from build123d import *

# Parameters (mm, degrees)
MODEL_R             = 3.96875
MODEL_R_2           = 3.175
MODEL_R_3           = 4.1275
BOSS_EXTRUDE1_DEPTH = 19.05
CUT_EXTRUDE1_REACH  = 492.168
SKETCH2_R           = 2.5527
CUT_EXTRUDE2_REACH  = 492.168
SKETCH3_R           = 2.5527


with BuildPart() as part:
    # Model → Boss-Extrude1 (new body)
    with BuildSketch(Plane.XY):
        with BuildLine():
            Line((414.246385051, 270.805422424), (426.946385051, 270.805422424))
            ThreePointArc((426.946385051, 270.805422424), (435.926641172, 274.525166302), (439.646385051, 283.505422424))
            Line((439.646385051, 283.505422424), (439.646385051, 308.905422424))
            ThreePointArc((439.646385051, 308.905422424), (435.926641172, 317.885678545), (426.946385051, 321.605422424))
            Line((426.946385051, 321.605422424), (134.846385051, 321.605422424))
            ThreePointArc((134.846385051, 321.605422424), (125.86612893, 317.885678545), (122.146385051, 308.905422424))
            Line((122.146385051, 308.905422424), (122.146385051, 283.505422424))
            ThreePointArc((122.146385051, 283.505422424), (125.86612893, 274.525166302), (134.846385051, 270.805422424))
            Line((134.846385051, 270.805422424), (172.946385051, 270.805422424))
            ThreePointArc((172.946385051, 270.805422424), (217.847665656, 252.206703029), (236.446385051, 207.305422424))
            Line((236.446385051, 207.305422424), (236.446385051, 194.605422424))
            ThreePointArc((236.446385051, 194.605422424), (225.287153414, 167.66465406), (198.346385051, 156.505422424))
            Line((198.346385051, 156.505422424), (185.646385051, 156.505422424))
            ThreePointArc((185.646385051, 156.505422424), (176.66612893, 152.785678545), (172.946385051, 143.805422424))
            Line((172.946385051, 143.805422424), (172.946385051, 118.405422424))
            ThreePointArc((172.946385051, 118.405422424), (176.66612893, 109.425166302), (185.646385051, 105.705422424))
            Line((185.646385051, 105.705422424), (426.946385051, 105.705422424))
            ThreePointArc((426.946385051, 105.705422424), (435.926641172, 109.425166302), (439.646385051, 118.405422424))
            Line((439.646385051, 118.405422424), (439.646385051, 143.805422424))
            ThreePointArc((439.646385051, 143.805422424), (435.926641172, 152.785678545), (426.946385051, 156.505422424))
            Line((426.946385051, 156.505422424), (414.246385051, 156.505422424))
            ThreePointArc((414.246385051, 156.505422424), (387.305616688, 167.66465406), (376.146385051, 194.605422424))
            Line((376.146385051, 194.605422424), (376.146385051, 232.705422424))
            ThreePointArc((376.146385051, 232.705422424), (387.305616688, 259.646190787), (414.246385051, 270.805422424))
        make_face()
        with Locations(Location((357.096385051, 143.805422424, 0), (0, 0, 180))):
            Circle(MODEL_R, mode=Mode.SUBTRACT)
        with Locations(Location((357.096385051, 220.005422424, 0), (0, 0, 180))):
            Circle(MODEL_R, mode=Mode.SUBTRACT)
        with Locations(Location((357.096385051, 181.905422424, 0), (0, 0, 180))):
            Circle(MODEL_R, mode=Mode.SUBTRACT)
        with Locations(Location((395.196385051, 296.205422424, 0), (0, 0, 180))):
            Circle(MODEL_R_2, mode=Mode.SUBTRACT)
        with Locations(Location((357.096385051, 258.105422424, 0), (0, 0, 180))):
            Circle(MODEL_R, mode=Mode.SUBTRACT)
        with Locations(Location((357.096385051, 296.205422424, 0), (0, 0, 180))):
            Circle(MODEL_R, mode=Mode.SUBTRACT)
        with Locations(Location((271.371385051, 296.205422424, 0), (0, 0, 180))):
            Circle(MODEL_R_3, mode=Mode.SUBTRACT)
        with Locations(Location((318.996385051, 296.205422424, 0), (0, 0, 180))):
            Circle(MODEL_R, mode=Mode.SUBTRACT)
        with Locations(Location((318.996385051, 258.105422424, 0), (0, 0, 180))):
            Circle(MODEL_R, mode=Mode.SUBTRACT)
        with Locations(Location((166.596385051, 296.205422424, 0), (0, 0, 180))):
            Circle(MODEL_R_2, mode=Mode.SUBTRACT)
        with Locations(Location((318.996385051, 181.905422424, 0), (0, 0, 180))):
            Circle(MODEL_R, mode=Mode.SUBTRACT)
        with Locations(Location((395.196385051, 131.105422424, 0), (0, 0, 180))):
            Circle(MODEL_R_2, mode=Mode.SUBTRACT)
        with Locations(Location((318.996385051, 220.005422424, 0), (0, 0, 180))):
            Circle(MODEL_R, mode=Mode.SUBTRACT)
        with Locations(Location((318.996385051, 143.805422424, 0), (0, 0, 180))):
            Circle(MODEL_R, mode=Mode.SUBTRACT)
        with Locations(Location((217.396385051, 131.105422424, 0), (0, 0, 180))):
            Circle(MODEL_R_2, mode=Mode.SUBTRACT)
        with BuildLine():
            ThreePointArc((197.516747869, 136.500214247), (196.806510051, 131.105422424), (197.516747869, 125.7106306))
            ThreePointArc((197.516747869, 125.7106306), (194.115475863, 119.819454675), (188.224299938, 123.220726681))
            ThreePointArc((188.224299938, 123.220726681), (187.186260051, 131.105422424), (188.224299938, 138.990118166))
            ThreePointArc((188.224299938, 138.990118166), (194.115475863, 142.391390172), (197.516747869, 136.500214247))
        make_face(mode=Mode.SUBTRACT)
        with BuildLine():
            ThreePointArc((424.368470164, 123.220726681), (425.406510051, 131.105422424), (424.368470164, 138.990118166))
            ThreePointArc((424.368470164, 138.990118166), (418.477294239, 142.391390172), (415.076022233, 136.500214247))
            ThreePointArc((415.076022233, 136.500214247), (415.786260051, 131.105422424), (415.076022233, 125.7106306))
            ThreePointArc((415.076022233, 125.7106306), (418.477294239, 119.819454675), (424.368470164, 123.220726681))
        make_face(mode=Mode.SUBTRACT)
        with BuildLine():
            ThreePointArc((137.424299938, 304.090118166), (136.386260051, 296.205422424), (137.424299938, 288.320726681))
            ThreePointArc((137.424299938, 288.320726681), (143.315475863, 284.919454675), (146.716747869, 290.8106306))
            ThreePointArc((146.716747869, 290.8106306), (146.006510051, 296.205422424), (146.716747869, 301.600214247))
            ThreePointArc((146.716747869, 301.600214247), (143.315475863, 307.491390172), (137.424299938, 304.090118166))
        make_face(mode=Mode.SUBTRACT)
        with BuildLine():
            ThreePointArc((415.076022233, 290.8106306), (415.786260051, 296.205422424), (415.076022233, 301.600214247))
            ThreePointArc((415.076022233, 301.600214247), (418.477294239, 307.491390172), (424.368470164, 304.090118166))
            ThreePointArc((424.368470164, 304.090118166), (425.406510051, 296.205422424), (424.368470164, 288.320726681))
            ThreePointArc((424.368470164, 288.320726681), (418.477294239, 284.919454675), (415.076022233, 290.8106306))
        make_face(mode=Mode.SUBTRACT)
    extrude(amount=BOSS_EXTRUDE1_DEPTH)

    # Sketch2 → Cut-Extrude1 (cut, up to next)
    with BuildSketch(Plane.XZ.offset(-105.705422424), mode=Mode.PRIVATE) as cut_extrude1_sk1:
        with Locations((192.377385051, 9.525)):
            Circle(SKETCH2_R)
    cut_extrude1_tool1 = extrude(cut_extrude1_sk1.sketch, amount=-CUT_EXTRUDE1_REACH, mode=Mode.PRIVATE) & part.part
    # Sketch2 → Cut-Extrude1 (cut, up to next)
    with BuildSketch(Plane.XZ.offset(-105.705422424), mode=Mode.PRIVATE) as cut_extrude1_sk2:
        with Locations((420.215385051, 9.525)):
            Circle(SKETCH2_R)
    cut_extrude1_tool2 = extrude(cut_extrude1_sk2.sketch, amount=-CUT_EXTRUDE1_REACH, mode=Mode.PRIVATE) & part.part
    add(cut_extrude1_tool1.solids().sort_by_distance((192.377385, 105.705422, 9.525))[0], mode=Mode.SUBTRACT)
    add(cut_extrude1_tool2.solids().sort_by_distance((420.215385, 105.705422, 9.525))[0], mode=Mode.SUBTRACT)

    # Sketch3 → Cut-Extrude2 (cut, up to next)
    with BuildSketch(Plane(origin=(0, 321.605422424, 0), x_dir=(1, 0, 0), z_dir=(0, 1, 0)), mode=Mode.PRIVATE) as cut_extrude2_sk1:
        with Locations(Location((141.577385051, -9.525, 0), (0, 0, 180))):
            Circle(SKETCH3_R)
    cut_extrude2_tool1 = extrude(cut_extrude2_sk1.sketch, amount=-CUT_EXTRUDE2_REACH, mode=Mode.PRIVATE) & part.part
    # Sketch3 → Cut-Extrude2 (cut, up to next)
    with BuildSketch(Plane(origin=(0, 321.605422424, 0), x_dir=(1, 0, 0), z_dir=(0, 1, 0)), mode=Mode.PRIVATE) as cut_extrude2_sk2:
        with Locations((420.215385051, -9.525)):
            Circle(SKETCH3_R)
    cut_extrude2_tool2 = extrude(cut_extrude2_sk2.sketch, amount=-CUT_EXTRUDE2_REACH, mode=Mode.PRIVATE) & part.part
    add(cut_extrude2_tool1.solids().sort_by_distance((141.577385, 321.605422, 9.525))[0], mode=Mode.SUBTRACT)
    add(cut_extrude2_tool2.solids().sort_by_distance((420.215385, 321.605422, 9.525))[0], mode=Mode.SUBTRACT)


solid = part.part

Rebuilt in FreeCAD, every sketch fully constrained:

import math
import FreeCAD as App
import Part
import Sketcher
Q = App.Units.Quantity

doc = App.newDocument("Part")
body = doc.addObject("PartDesign::Body", "Body")

# Sketch on XY plane
sketch1 = body.newObject("Sketcher::SketchObject", "Sketch")
sketch1.AttachmentSupport = (doc.getObject("XY_Plane"), [""])
sketch1.MapMode = "FlatFace"
sketch1.addGeometry(Part.LineSegment(App.Vector(414.2, 270.8, 0), App.Vector(426.9, 270.8, 0)), False)
sketch1.addGeometry(Part.ArcOfCircle(Part.Circle(App.Vector(426.9, 283.5, 0), App.Vector(0, 0, 1), 12.7), math.radians(-90), math.radians(0)), False)
sketch1.addGeometry(Part.LineSegment(App.Vector(439.6, 283.5, 0), App.Vector(439.6, 308.9, 0)), False)
sketch1.addGeometry(Part.ArcOfCircle(Part.Circle(App.Vector(426.9, 308.9, 0), App.Vector(0, 0, 1), 12.7), math.radians(0), math.radians(90)), False)
sketch1.addGeometry(Part.LineSegment(App.Vector(426.9, 321.6, 0), App.Vector(134.8, 321.6, 0)), False)
sketch1.addGeometry(Part.ArcOfCircle(Part.Circle(App.Vector(134.8, 308.9, 0), App.Vector(0, 0, 1), 12.7), math.radians(90), math.radians(180)), False)
sketch1.addGeometry(Part.LineSegment(App.Vector(122.1, 308.9, 0), App.Vector(122.1, 283.5, 0)), False)
sketch1.addGeometry(Part.ArcOfCircle(Part.Circle(App.Vector(134.8, 283.5, 0), App.Vector(0, 0, 1), 12.7), math.radians(180), math.radians(270)), False)
sketch1.addGeometry(Part.LineSegment(App.Vector(134.8, 270.8, 0), App.Vector(172.9, 270.8, 0)), False)
sketch1.addGeometry(Part.ArcOfCircle(Part.Circle(App.Vector(172.9, 207.3, 0), App.Vector(0, 0, 1), 63.5), math.radians(0), math.radians(90)), False)
sketch1.addGeometry(Part.LineSegment(App.Vector(236.4, 207.3, 0), App.Vector(236.4, 194.6, 0)), False)
sketch1.addGeometry(Part.ArcOfCircle(Part.Circle(App.Vector(198.3, 194.6, 0), App.Vector(0, 0, 1), 38.1), math.radians(-90), math.radians(0)), False)
sketch1.addGeometry(Part.LineSegment(App.Vector(198.3, 156.5, 0), App.Vector(185.6, 156.5, 0)), False)
sketch1.addGeometry(Part.ArcOfCircle(Part.Circle(App.Vector(185.6, 143.8, 0), App.Vector(0, 0, 1), 12.7), math.radians(90), math.radians(180)), False)
sketch1.addGeometry(Part.LineSegment(App.Vector(172.9, 143.8, 0), App.Vector(172.9, 118.4, 0)), False)
sketch1.addGeometry(Part.ArcOfCircle(Part.Circle(App.Vector(185.6, 118.4, 0), App.Vector(0, 0, 1), 12.7), math.radians(180), math.radians(270)), False)
sketch1.addGeometry(Part.LineSegment(App.Vector(185.6, 105.7, 0), App.Vector(426.9, 105.7, 0)), False)
sketch1.addGeometry(Part.ArcOfCircle(Part.Circle(App.Vector(426.9, 118.4, 0), App.Vector(0, 0, 1), 12.7), math.radians(-90), math.radians(0)), False)
sketch1.addGeometry(Part.LineSegment(App.Vector(439.6, 118.4, 0), App.Vector(439.6, 143.8, 0)), False)
sketch1.addGeometry(Part.ArcOfCircle(Part.Circle(App.Vector(426.9, 143.8, 0), App.Vector(0, 0, 1), 12.7), math.radians(0), math.radians(90)), False)
sketch1.addGeometry(Part.LineSegment(App.Vector(426.9, 156.5, 0), App.Vector(414.2, 156.5, 0)), False)
sketch1.addGeometry(Part.ArcOfCircle(Part.Circle(App.Vector(414.2, 194.6, 0), App.Vector(0, 0, 1), 38.1), math.radians(180), math.radians(270)), False)
sketch1.addGeometry(Part.LineSegment(App.Vector(376.1, 194.6, 0), App.Vector(376.1, 232.7, 0)), False)
sketch1.addGeometry(Part.ArcOfCircle(Part.Circle(App.Vector(414.2, 232.7, 0), App.Vector(0, 0, 1), 38.1), math.radians(90), math.radians(180)), False)
sketch1.addGeometry(Part.ArcOfCircle(Part.Circle(App.Vector(192.9, 137.7, 0), App.Vector(0, 0, 1), 4.8), math.radians(-15), math.radians(165)), False)
sketch1.addGeometry(Part.ArcOfCircle(Part.Circle(App.Vector(217.7, 131.1, 0), App.Vector(0, 0, 1), 20.8), math.radians(165), math.radians(195)), False)
sketch1.addGeometry(Part.ArcOfCircle(Part.Circle(App.Vector(192.9, 124.5, 0), App.Vector(0, 0, 1), 4.8), math.radians(-165), math.radians(15)), False)
sketch1.addGeometry(Part.ArcOfCircle(Part.Circle(App.Vector(217.7, 131.1, 0), App.Vector(0, 0, 1), 30.5), math.radians(165), math.radians(195)), False)
sketch1.addGeometry(Part.Circle(App.Vector(217.4, 131.1, 0), App.Vector(0, 0, 1), 3.2), False)
sketch1.addGeometry(Part.Circle(App.Vector(319, 143.8, 0), App.Vector(0, 0, 1), 4), False)
sketch1.addGeometry(Part.Circle(App.Vector(395.2, 131.1, 0), App.Vector(0, 0, 1), 3.2), False)
sketch1.addGeometry(Part.ArcOfCircle(Part.Circle(App.Vector(394.9, 131.1, 0), App.Vector(0, 0, 1), 30.5), math.radians(-15), math.radians(15)), False)
sketch1.addGeometry(Part.ArcOfCircle(Part.Circle(App.Vector(419.7, 124.5, 0), App.Vector(0, 0, 1), 4.8), math.radians(165), math.radians(345)), False)
sketch1.addGeometry(Part.ArcOfCircle(Part.Circle(App.Vector(394.9, 131.1, 0), App.Vector(0, 0, 1), 20.8), math.radians(-15), math.radians(15)), False)
sketch1.addGeometry(Part.ArcOfCircle(Part.Circle(App.Vector(419.7, 137.7, 0), App.Vector(0, 0, 1), 4.8), math.radians(15), math.radians(195)), False)
sketch1.addGeometry(Part.Circle(App.Vector(357.1, 143.8, 0), App.Vector(0, 0, 1), 4), False)
sketch1.addGeometry(Part.Circle(App.Vector(319, 181.9, 0), App.Vector(0, 0, 1), 4), False)
sketch1.addGeometry(Part.Circle(App.Vector(357.1, 181.9, 0), App.Vector(0, 0, 1), 4), False)
sketch1.addGeometry(Part.ArcOfCircle(Part.Circle(App.Vector(166.9, 296.2, 0), App.Vector(0, 0, 1), 30.5), math.radians(165), math.radians(195)), False)
sketch1.addGeometry(Part.ArcOfCircle(Part.Circle(App.Vector(142.1, 302.8, 0), App.Vector(0, 0, 1), 4.8), math.radians(-15), math.radians(165)), False)
sketch1.addGeometry(Part.ArcOfCircle(Part.Circle(App.Vector(166.9, 296.2, 0), App.Vector(0, 0, 1), 20.8), math.radians(165), math.radians(195)), False)
sketch1.addGeometry(Part.ArcOfCircle(Part.Circle(App.Vector(142.1, 289.6, 0), App.Vector(0, 0, 1), 4.8), math.radians(-165), math.radians(15)), False)
sketch1.addGeometry(Part.Circle(App.Vector(166.6, 296.2, 0), App.Vector(0, 0, 1), 3.2), False)
sketch1.addGeometry(Part.Circle(App.Vector(271.4, 296.2, 0), App.Vector(0, 0, 1), 4.1), False)
sketch1.addGeometry(Part.Circle(App.Vector(319, 220, 0), App.Vector(0, 0, 1), 4), False)
sketch1.addGeometry(Part.Circle(App.Vector(319, 258.1, 0), App.Vector(0, 0, 1), 4), False)
sketch1.addGeometry(Part.Circle(App.Vector(357.1, 220, 0), App.Vector(0, 0, 1), 4), False)
sketch1.addGeometry(Part.Circle(App.Vector(357.1, 258.1, 0), App.Vector(0, 0, 1), 4), False)
sketch1.addGeometry(Part.Circle(App.Vector(319, 296.2, 0), App.Vector(0, 0, 1), 4), False)
sketch1.addGeometry(Part.Circle(App.Vector(357.1, 296.2, 0), App.Vector(0, 0, 1), 4), False)
sketch1.addGeometry(Part.Circle(App.Vector(395.2, 296.2, 0), App.Vector(0, 0, 1), 3.2), False)
sketch1.addGeometry(Part.ArcOfCircle(Part.Circle(App.Vector(419.7, 289.6, 0), App.Vector(0, 0, 1), 4.8), math.radians(165), math.radians(345)), False)
sketch1.addGeometry(Part.ArcOfCircle(Part.Circle(App.Vector(394.9, 296.2, 0), App.Vector(0, 0, 1), 20.8), math.radians(-15), math.radians(15)), False)
sketch1.addGeometry(Part.ArcOfCircle(Part.Circle(App.Vector(419.7, 302.8, 0), App.Vector(0, 0, 1), 4.8), math.radians(15), math.radians(195)), False)
sketch1.addGeometry(Part.ArcOfCircle(Part.Circle(App.Vector(394.9, 296.2, 0), App.Vector(0, 0, 1), 30.5), math.radians(-15), math.radians(15)), False)
sketch1.addConstraint(Sketcher.Constraint("Tangent", 0, 2, 1, 1))
sketch1.addConstraint(Sketcher.Constraint("Tangent", 1, 2, 2, 1))
sketch1.addConstraint(Sketcher.Constraint("Tangent", 2, 2, 3, 1))
sketch1.addConstraint(Sketcher.Constraint("Tangent", 3, 2, 4, 1))
sketch1.addConstraint(Sketcher.Constraint("Tangent", 4, 2, 5, 1))
sketch1.addConstraint(Sketcher.Constraint("Tangent", 5, 2, 6, 1))
sketch1.addConstraint(Sketcher.Constraint("Tangent", 6, 2, 7, 1))
sketch1.addConstraint(Sketcher.Constraint("Tangent", 7, 2, 8, 1))
sketch1.addConstraint(Sketcher.Constraint("Tangent", 8, 2, 9, 2))
sketch1.addConstraint(Sketcher.Constraint("Tangent", 9, 1, 10, 1))
sketch1.addConstraint(Sketcher.Constraint("Tangent", 10, 2, 11, 2))
sketch1.addConstraint(Sketcher.Constraint("Tangent", 11, 1, 12, 1))
sketch1.addConstraint(Sketcher.Constraint("Tangent", 12, 2, 13, 1))
sketch1.addConstraint(Sketcher.Constraint("Tangent", 13, 2, 14, 1))
sketch1.addConstraint(Sketcher.Constraint("Tangent", 14, 2, 15, 1))
sketch1.addConstraint(Sketcher.Constraint("Tangent", 15, 2, 16, 1))
sketch1.addConstraint(Sketcher.Constraint("Tangent", 16, 2, 17, 1))
sketch1.addConstraint(Sketcher.Constraint("Tangent", 17, 2, 18, 1))
sketch1.addConstraint(Sketcher.Constraint("Tangent", 18, 2, 19, 1))
sketch1.addConstraint(Sketcher.Constraint("Tangent", 19, 2, 20, 1))
sketch1.addConstraint(Sketcher.Constraint("Tangent", 20, 2, 21, 2))
sketch1.addConstraint(Sketcher.Constraint("Tangent", 21, 1, 22, 1))
sketch1.addConstraint(Sketcher.Constraint("Tangent", 22, 2, 23, 2))
sketch1.addConstraint(Sketcher.Constraint("Tangent", 23, 1, 0, 1))
sketch1.addConstraint(Sketcher.Constraint("Tangent", 24, 1, 25, 1))
sketch1.addConstraint(Sketcher.Constraint("Tangent", 25, 2, 26, 2))
sketch1.addConstraint(Sketcher.Constraint("Tangent", 26, 1, 27, 2))
sketch1.addConstraint(Sketcher.Constraint("Tangent", 27, 1, 24, 2))
sketch1.addConstraint(Sketcher.Constraint("Tangent", 31, 1, 32, 2))
sketch1.addConstraint(Sketcher.Constraint("Tangent", 32, 1, 33, 1))
sketch1.addConstraint(Sketcher.Constraint("Tangent", 33, 2, 34, 2))
sketch1.addConstraint(Sketcher.Constraint("Tangent", 34, 1, 31, 2))
sketch1.addConstraint(Sketcher.Constraint("Tangent", 38, 1, 39, 2))
sketch1.addConstraint(Sketcher.Constraint("Tangent", 39, 1, 40, 1))
sketch1.addConstraint(Sketcher.Constraint("Tangent", 40, 2, 41, 2))
sketch1.addConstraint(Sketcher.Constraint("Tangent", 41, 1, 38, 2))
sketch1.addConstraint(Sketcher.Constraint("Tangent", 51, 1, 52, 1))
sketch1.addConstraint(Sketcher.Constraint("Tangent", 52, 2, 53, 2))
sketch1.addConstraint(Sketcher.Constraint("Tangent", 53, 1, 54, 2))
sketch1.addConstraint(Sketcher.Constraint("Tangent", 54, 1, 51, 2))
sketch1.addConstraint(Sketcher.Constraint("Horizontal", 0))
sketch1.addConstraint(Sketcher.Constraint("Vertical", 2))
sketch1.addConstraint(Sketcher.Constraint("Horizontal", 4))
sketch1.addConstraint(Sketcher.Constraint("Vertical", 6))
sketch1.addConstraint(Sketcher.Constraint("Horizontal", 8))
sketch1.addConstraint(Sketcher.Constraint("Vertical", 10))
sketch1.addConstraint(Sketcher.Constraint("Horizontal", 12))
sketch1.addConstraint(Sketcher.Constraint("Vertical", 14))
sketch1.addConstraint(Sketcher.Constraint("Horizontal", 16))
sketch1.addConstraint(Sketcher.Constraint("Vertical", 18))
sketch1.addConstraint(Sketcher.Constraint("Horizontal", 20))
sketch1.addConstraint(Sketcher.Constraint("Vertical", 22))
sketch1.addConstraint(Sketcher.Constraint("Coincident", 27, 3, 25, 3))
sketch1.addConstraint(Sketcher.Constraint("Coincident", 33, 3, 31, 3))
sketch1.addConstraint(Sketcher.Constraint("Coincident", 40, 3, 38, 3))
sketch1.addConstraint(Sketcher.Constraint("Coincident", 54, 3, 52, 3))
sketch1.addConstraint(Sketcher.Constraint("Equal", 1, 3))
sketch1.addConstraint(Sketcher.Constraint("Equal", 3, 5))
sketch1.addConstraint(Sketcher.Constraint("Equal", 5, 7))
sketch1.addConstraint(Sketcher.Constraint("Equal", 7, 13))
sketch1.addConstraint(Sketcher.Constraint("Equal", 13, 15))
sketch1.addConstraint(Sketcher.Constraint("Equal", 15, 17))
sketch1.addConstraint(Sketcher.Constraint("Equal", 17, 19))
sketch1.addConstraint(Sketcher.Constraint("Equal", 11, 21))
sketch1.addConstraint(Sketcher.Constraint("Equal", 21, 23))
sketch1.addConstraint(Sketcher.Constraint("Equal", 28, 30))
sketch1.addConstraint(Sketcher.Constraint("Equal", 27, 31))
sketch1.addConstraint(Sketcher.Constraint("Equal", 26, 32))
sketch1.addConstraint(Sketcher.Constraint("Equal", 29, 35))
sketch1.addConstraint(Sketcher.Constraint("Equal", 35, 36))
sketch1.addConstraint(Sketcher.Constraint("Equal", 36, 37))
sketch1.addConstraint(Sketcher.Constraint("Equal", 31, 38))
sketch1.addConstraint(Sketcher.Constraint("Equal", 34, 39))
sketch1.addConstraint(Sketcher.Constraint("Equal", 30, 42))
sketch1.addConstraint(Sketcher.Constraint("Equal", 37, 44))
sketch1.addConstraint(Sketcher.Constraint("Equal", 44, 45))
sketch1.addConstraint(Sketcher.Constraint("Equal", 45, 46))
sketch1.addConstraint(Sketcher.Constraint("Equal", 46, 47))
sketch1.addConstraint(Sketcher.Constraint("Equal", 47, 48))
sketch1.addConstraint(Sketcher.Constraint("Equal", 48, 49))
sketch1.addConstraint(Sketcher.Constraint("Equal", 42, 50))
sketch1.addConstraint(Sketcher.Constraint("Equal", 41, 51))
sketch1.addConstraint(Sketcher.Constraint("Equal", 40, 52))
sketch1.addConstraint(Sketcher.Constraint("Horizontal", 1, 3, 7, 3))
sketch1.addConstraint(Sketcher.Constraint("Horizontal", 13, 3, 19, 3))
sketch1.addConstraint(Sketcher.Constraint("Horizontal", 27, 3, 28, 3))
sketch1.addConstraint(Sketcher.Constraint("Horizontal", 19, 3, 29, 3))
sketch1.addConstraint(Sketcher.Constraint("Horizontal", 28, 3, 30, 3))
sketch1.addConstraint(Sketcher.Constraint("Horizontal", 30, 3, 31, 3))
sketch1.addConstraint(Sketcher.Constraint("Horizontal", 26, 3, 32, 3))
sketch1.addConstraint(Sketcher.Constraint("Horizontal", 24, 3, 34, 3))
sketch1.addConstraint(Sketcher.Constraint("Horizontal", 29, 3, 35, 3))
sketch1.addConstraint(Sketcher.Constraint("Horizontal", 36, 3, 37, 3))
sketch1.addConstraint(Sketcher.Constraint("Horizontal", 40, 3, 42, 3))
sketch1.addConstraint(Sketcher.Constraint("Horizontal", 42, 3, 43, 3))
sketch1.addConstraint(Sketcher.Constraint("Horizontal", 44, 3, 46, 3))
sketch1.addConstraint(Sketcher.Constraint("Horizontal", 45, 3, 47, 3))
sketch1.addConstraint(Sketcher.Constraint("Horizontal", 43, 3, 48, 3))
sketch1.addConstraint(Sketcher.Constraint("Horizontal", 48, 3, 49, 3))
sketch1.addConstraint(Sketcher.Constraint("Horizontal", 49, 3, 50, 3))
sketch1.addConstraint(Sketcher.Constraint("Horizontal", 41, 3, 51, 3))
sketch1.addConstraint(Sketcher.Constraint("Horizontal", 50, 3, 52, 3))
sketch1.addConstraint(Sketcher.Constraint("Horizontal", 39, 3, 53, 3))
sketch1.addConstraint(Sketcher.Constraint("Vertical", 3, 3, 17, 3))
sketch1.addConstraint(Sketcher.Constraint("Vertical", 24, 3, 26, 3))
sketch1.addConstraint(Sketcher.Constraint("Vertical", 29, 3, 36, 3))
sketch1.addConstraint(Sketcher.Constraint("Vertical", 35, 3, 37, 3))
sketch1.addConstraint(Sketcher.Constraint("Vertical", 39, 3, 41, 3))
sketch1.addConstraint(Sketcher.Constraint("Vertical", 36, 3, 44, 3))
sketch1.addConstraint(Sketcher.Constraint("Vertical", 44, 3, 45, 3))
sketch1.addConstraint(Sketcher.Constraint("Vertical", 37, 3, 46, 3))
sketch1.addConstraint(Sketcher.Constraint("Vertical", 46, 3, 47, 3))
sketch1.addConstraint(Sketcher.Constraint("Vertical", 45, 3, 48, 3))
sketch1.addConstraint(Sketcher.Constraint("Vertical", 47, 3, 49, 3))
sketch1.addConstraint(Sketcher.Constraint("Vertical", 30, 3, 50, 3))
sketch1.addConstraint(Sketcher.Constraint("Vertical", 34, 3, 51, 3))
sketch1.addConstraint(Sketcher.Constraint("Vertical", 33, 3, 52, 3))
sketch1.addConstraint(Sketcher.Constraint("Vertical", 8, 2, 13, 2))
sketch1.addConstraint(Sketcher.Constraint("Equal", 0, 12))
sketch1.addConstraint(Sketcher.Constraint("Equal", 20, 10))
sketch1.addConstraint(Sketcher.Constraint("Equal", 6, 14))
sketch1.addConstraint(Sketcher.Constraint("Equal", 8, 22))
sketch1.addConstraint(Sketcher.Constraint("Radius", 1, Q("0.5 in")))
sketch1.addConstraint(Sketcher.Constraint("Radius", 9, Q("2.5 in")))
sketch1.addConstraint(Sketcher.Constraint("Radius", 11, Q("1.5 in")))
sketch1.addConstraint(Sketcher.Constraint("Diameter", 28, Q("0.25 in")))
sketch1.addConstraint(Sketcher.Constraint("DistanceY", 2, 1, 2, 2, Q("1 in")))
sketch1.addConstraint(Sketcher.Constraint("Diameter", 29, Q("0.3125 in")))
sketch1.addConstraint(Sketcher.Constraint("Diameter", 43, Q("0.325 in")))
sketch1.addConstraint(Sketcher.Constraint("DistanceX", 4, 2, 4, 1, Q("11.5 in")))
sketch1.addConstraint(Sketcher.Constraint("Radius", 24, Q("4.810125 mm")))
sketch1.addConstraint(Sketcher.Constraint("Radius", 25, Q("20.843875 mm")))
sketch1.addConstraint(Sketcher.Constraint("DistanceX", -1, 1, 26, 1, Q("188.2243 mm")))
sketch1.addConstraint(Sketcher.Constraint("DistanceX", -1, 1, 38, 1, Q("137.4243 mm")))
sketch1.addConstraint(Sketcher.Constraint("DistanceY", -1, 1, 26, 3, Q("124.465679 mm")))
sketch1.addConstraint(Sketcher.Constraint("DistanceY", -1, 1, 41, 3, Q("289.565679 mm")))
sketch1.addConstraint(Sketcher.Constraint("DistanceY", -1, 1, 27, 1, Q("138.990118 mm")))
sketch1.addConstraint(Sketcher.Constraint("DistanceX", -1, 1, 31, 1, Q("424.36847 mm")))
sketch1.addConstraint(Sketcher.Constraint("DistanceX", -1, 1, 1, 3, Q("426.946385 mm")))
sketch1.addConstraint(Sketcher.Constraint("DistanceY", -1, 1, 1, 3, Q("283.505422 mm")))
sketch1.addConstraint(Sketcher.Constraint("DistanceX", -1, 1, 28, 3, Q("217.396385 mm")))
sketch1.addConstraint(Sketcher.Constraint("DistanceX", -1, 1, 29, 3, Q("318.996385 mm")))
sketch1.addConstraint(Sketcher.Constraint("DistanceX", -1, 1, 30, 3, Q("395.196385 mm")))
sketch1.addConstraint(Sketcher.Constraint("DistanceX", -1, 1, 35, 3, Q("357.096385 mm")))
sketch1.addConstraint(Sketcher.Constraint("DistanceY", -1, 1, 36, 3, Q("181.905422 mm")))
sketch1.addConstraint(Sketcher.Constraint("DistanceX", -1, 1, 42, 3, Q("166.596385 mm")))
sketch1.addConstraint(Sketcher.Constraint("DistanceX", -1, 1, 43, 3, Q("271.371385 mm")))
sketch1.addConstraint(Sketcher.Constraint("DistanceY", -1, 1, 44, 3, Q("220.005422 mm")))
sketch1.addConstraint(Sketcher.Constraint("DistanceY", -1, 1, 45, 3, Q("258.105422 mm")))
pad1 = body.newObject("PartDesign::Pad", "Pad")
pad1.Profile = sketch1
pad1.Length = Q("0.75 in")

# Sketch on XZ plane
sketch2 = body.newObject("Sketcher::SketchObject", "Sketch001")
sketch2.AttachmentSupport = (doc.getObject("XZ_Plane"), [""])
sketch2.MapMode = "FlatFace"
sketch2.AttachmentOffset = App.Placement(App.Vector(0, 0, -105.705422), App.Rotation())
sketch2.addGeometry(Part.Circle(App.Vector(192.4, 9.5, 0), App.Vector(0, 0, 1), 2.6), False)
sketch2.addConstraint(Sketcher.Constraint("Diameter", 0, Q("0.201 in")))
sketch2.addConstraint(Sketcher.Constraint("DistanceY", -1, 1, 0, 3, Q("0.375 in")))
sketch2.addConstraint(Sketcher.Constraint("DistanceX", -1, 1, 0, 3, Q("192.377385 mm")))
pocket1 = body.newObject("PartDesign::Pocket", "Pocket")
pocket1.Profile = sketch2
pocket1.Type = "UpToFirst"

# Sketch on XZ plane
sketch3 = body.newObject("Sketcher::SketchObject", "Sketch002")
sketch3.AttachmentSupport = (doc.getObject("XZ_Plane"), [""])
sketch3.MapMode = "FlatFace"
sketch3.AttachmentOffset = App.Placement(App.Vector(0, 0, -105.705422), App.Rotation())
sketch3.addGeometry(Part.Circle(App.Vector(420.2, 9.5, 0), App.Vector(0, 0, 1), 2.6), False)
sketch3.addConstraint(Sketcher.Constraint("Diameter", 0, Q("0.201 in")))
sketch3.addConstraint(Sketcher.Constraint("DistanceY", -1, 1, 0, 3, Q("0.375 in")))
sketch3.addConstraint(Sketcher.Constraint("DistanceX", -1, 1, 0, 3, Q("420.215385 mm")))
pocket2 = body.newObject("PartDesign::Pocket", "Pocket001")
pocket2.Profile = sketch3
pocket2.Type = "UpToFirst"

# Sketch on XZ plane
sketch4 = body.newObject("Sketcher::SketchObject", "Sketch003")
sketch4.AttachmentSupport = (doc.getObject("XZ_Plane"), [""])
sketch4.MapMode = "FlatFace"
sketch4.AttachmentOffset = App.Placement(App.Vector(0, 0, -321.605422), App.Rotation())
sketch4.addGeometry(Part.Circle(App.Vector(141.6, 9.5, 0), App.Vector(0, 0, 1), 2.6), False)
sketch4.addConstraint(Sketcher.Constraint("Diameter", 0, Q("0.201 in")))
sketch4.addConstraint(Sketcher.Constraint("DistanceY", -1, 1, 0, 3, Q("0.375 in")))
sketch4.addConstraint(Sketcher.Constraint("DistanceX", -1, 1, 0, 3, Q("141.577385 mm")))
pocket3 = body.newObject("PartDesign::Pocket", "Pocket002")
pocket3.Profile = sketch4
pocket3.Type = "UpToFirst"
pocket3.Reversed = True

# Sketch on XZ plane
sketch5 = body.newObject("Sketcher::SketchObject", "Sketch004")
sketch5.AttachmentSupport = (doc.getObject("XZ_Plane"), [""])
sketch5.MapMode = "FlatFace"
sketch5.AttachmentOffset = App.Placement(App.Vector(0, 0, -321.605422), App.Rotation())
sketch5.addGeometry(Part.Circle(App.Vector(420.2, 9.5, 0), App.Vector(0, 0, 1), 2.6), False)
sketch5.addConstraint(Sketcher.Constraint("Diameter", 0, Q("0.201 in")))
sketch5.addConstraint(Sketcher.Constraint("DistanceY", -1, 1, 0, 3, Q("0.375 in")))
sketch5.addConstraint(Sketcher.Constraint("DistanceX", -1, 1, 0, 3, Q("420.215385 mm")))
pocket4 = body.newObject("PartDesign::Pocket", "Pocket003")
pocket4.Profile = sketch5
pocket4.Type = "UpToFirst"
pocket4.Reversed = True

doc.recompute()
